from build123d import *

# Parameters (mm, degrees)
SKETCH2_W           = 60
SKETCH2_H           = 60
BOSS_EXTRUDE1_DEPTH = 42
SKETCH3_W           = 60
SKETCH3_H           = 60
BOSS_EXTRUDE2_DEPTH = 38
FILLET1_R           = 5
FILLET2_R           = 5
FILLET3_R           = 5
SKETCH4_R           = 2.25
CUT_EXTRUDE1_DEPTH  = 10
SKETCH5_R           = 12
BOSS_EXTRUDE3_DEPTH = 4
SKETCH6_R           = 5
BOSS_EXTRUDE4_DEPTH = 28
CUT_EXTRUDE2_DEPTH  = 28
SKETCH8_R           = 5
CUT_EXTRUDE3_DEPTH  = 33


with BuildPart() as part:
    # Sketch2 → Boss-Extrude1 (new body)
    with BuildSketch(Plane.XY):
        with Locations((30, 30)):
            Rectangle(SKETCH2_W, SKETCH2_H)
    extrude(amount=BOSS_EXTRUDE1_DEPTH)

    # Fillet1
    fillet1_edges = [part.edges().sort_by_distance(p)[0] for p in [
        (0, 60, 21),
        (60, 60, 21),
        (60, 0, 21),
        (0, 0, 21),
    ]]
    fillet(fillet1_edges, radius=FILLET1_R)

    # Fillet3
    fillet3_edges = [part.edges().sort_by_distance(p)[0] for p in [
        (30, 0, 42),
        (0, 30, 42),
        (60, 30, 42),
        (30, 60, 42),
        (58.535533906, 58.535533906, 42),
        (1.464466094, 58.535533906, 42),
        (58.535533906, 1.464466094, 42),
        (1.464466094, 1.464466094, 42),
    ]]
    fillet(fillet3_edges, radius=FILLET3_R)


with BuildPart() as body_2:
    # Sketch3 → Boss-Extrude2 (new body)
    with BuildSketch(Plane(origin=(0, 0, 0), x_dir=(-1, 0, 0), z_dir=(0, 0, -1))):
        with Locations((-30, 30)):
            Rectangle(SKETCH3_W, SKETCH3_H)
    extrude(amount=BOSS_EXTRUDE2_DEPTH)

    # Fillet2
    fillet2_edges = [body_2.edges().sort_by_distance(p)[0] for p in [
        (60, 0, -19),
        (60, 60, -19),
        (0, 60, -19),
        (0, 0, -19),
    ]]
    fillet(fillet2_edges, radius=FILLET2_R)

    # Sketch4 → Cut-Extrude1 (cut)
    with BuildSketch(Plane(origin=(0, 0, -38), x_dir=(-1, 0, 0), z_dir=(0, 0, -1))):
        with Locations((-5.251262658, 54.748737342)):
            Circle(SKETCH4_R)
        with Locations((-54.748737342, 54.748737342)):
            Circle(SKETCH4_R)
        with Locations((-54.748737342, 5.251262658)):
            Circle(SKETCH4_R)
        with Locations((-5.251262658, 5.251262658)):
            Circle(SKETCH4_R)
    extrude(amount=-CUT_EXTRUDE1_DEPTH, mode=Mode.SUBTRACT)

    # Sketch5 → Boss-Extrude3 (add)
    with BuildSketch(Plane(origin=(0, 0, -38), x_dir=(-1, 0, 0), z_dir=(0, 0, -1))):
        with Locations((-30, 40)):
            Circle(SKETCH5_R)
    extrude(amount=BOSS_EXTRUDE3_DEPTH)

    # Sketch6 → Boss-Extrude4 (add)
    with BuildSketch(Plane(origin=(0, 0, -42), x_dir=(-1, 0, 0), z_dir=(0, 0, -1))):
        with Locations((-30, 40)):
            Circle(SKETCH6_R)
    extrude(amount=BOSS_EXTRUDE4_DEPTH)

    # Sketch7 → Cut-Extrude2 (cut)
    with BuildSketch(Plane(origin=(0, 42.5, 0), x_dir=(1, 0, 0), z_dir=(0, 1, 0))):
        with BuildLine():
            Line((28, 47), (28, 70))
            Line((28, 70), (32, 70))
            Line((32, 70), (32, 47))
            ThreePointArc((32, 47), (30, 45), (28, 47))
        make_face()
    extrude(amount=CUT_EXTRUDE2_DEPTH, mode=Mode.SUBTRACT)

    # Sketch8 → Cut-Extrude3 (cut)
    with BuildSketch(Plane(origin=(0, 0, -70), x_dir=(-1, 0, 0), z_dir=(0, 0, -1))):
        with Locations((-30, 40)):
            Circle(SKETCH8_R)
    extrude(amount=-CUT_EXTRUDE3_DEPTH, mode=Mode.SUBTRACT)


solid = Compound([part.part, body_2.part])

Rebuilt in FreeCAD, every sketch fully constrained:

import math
import FreeCAD as App
import Part
import Sketcher

V = App.Vector


def edges_at(feature, points):
    """Names of the edges that pass closest to the given points."""
    edges = feature.Shape.Edges
    near = lambda p: min(range(len(edges)), key=lambda i: edges[i].distToShape(Part.Vertex(*p))[0])
    return sorted({f"Edge{near(p) + 1}" for p in points})


def add_polygon(sketch, points):
    """Adds a closed chain of lines whose ends are joined by coincident constraints."""
    first, n = sketch.GeometryCount, len(points)
    for a, b in zip(points, points[1:] + points[:1]):
        sketch.addGeometry(Part.LineSegment(App.Vector(*a, 0), App.Vector(*b, 0)), False)
    for i in range(n):
        sketch.addConstraint(Sketcher.Constraint("Coincident", first + i, 2, first + (i + 1) % n, 1))

doc = App.newDocument("Part")
params = doc.addObject("Spreadsheet::Sheet", "Params")
for row, (alias, value) in enumerate([
    ("sketch1_width", "60 mm"),
    ("pad1_length", "42 mm"),
    ("fillet_radius", "5 mm"),
    ("fillet2_radius", "5 mm"),
    ("sketch2_width", "60 mm"),
    ("pad2_length", "38 mm"),
    ("fillet3_radius", "5 mm"),
    ("sketch3_diameter", "4.5 mm"),
    ("pocket1_length", "10 mm"),
    ("sketch4_diameter", "24 mm"),
    ("pad3_length", "4 mm"),
    ("sketch5_diameter", "10 mm"),
    ("pad4_length", "28 mm"),
    ("sketch6_radius", "2 mm"),
    ("sketch6_height", "23 mm"),
    ("pocket2_length", "28 mm"),
    ("sketch7_diameter", "10 mm"),
    ("pocket3_length", "33 mm"),
], start=1):
    params.set(f"A{row}", alias)
    params.set(f"B{row}", "=" + value)
    params.setAlias(f"B{row}", alias)

body = doc.addObject("PartDesign::Body", "Body")

sketch1 = doc.addObject("Sketcher::SketchObject", "Sketch")
body.addObject(sketch1)
sketch1.AttachmentSupport = (doc.XY_Plane, [""])
sketch1.MapMode = "FlatFace"
add_polygon(sketch1, [(0, 60), (0, 0), (60, 0), (60, 60)])
sketch1.addConstraint(Sketcher.Constraint("Vertical", 0))
sketch1.addConstraint(Sketcher.Constraint("Horizontal", 1))
sketch1.addConstraint(Sketcher.Constraint("Vertical", 2))
sketch1.addConstraint(Sketcher.Constraint("Horizontal", 3))
sketch1.addConstraint(Sketcher.Constraint("Coincident", 0, 2, -1, 1))
sketch1.addConstraint(Sketcher.Constraint("Equal", 3, 0))
sketch1.addConstraint(Sketcher.Constraint("DistanceX", 1, 1, 1, 2, 60.0))
sketch1.setExpression("Constraints[10]", "Params.sketch1_width")
pad1 = doc.addObject("PartDesign::Pad", "Pad")
body.addObject(pad1)
pad1.Profile = sketch1
pad1.setExpression("Length", "Params.pad1_length")
doc.recompute()

fillet = doc.addObject("PartDesign::Fillet", "Fillet")
body.addObject(fillet)
fillet.Base = (pad1, edges_at(pad1, [
    (0, 60, 21),
    (60, 60, 21),
    (60, 0, 21),
    (0, 0, 21),
]))
fillet.setExpression("Radius", "Params.fillet_radius")
doc.recompute()

fillet2 = doc.addObject("PartDesign::Fillet", "Fillet001")
body.addObject(fillet2)
fillet2.Base = (fillet, edges_at(fillet, [
    (30, 0, 42),
    (0, 30, 42),
    (60, 30, 42),
    (30, 60, 42),
    (58.536, 58.536, 42),
    (1.464, 58.536, 42),
    (58.536, 1.464, 42),
    (1.464, 1.464, 42),
]))
fillet2.setExpression("Radius", "Params.fillet2_radius")
body2 = doc.addObject("PartDesign::Body", "Body001")

sketch2 = doc.addObject("Sketcher::SketchObject", "Sketch001")
body2.addObject(sketch2)
sketch2.AttachmentSupport = (doc.getObject("XY_Plane001"), [""])
sketch2.MapMode = "FlatFace"
add_polygon(sketch2, [(60, 60), (60, 0), (0, 0), (0, 60)])
sketch2.addConstraint(Sketcher.Constraint("Vertical", 0))
sketch2.addConstraint(Sketcher.Constraint("Horizontal", 1))
sketch2.addConstraint(Sketcher.Constraint("Vertical", 2))
sketch2.addConstraint(Sketcher.Constraint("Horizontal", 3))
sketch2.addConstraint(Sketcher.Constraint("Coincident", 1, 2, -1, 1))
sketch2.addConstraint(Sketcher.Constraint("Equal", 3, 0))
sketch2.addConstraint(Sketcher.Constraint("DistanceX", 1, 2, 1, 1, 60.0))
sketch2.setExpression("Constraints[10]", "Params.sketch2_width")
pad2 = doc.addObject("PartDesign::Pad", "Pad001")
body2.addObject(pad2)
pad2.Profile = sketch2
pad2.setExpression("Length", "Params.pad2_length")
pad2.Reversed = True
doc.recompute()

fillet3 = doc.addObject("PartDesign::Fillet", "Fillet002")
body2.addObject(fillet3)
fillet3.Base = (pad2, edges_at(pad2, [
    (60, 0, -19),
    (60, 60, -19),
    (0, 60, -19),
    (0, 0, -19),
]))
fillet3.setExpression("Radius", "Params.fillet3_radius")

sketch3 = doc.addObject("Sketcher::SketchObject", "Sketch002")
body2.addObject(sketch3)
sketch3.AttachmentSupport = (doc.getObject("XY_Plane001"), [""])
sketch3.MapMode = "FlatFace"
sketch3.AttachmentOffset = App.Placement(V(0, 0, -38), App.Rotation())
sketch3.addGeometry(Part.Circle(V(5.3, 54.7, 0), V(0, 0, 1), 2.2), False)
sketch3.addGeometry(Part.Circle(V(54.7, 54.7, 0), V(0, 0, 1), 2.2), False)
sketch3.addGeometry(Part.Circle(V(54.7, 5.3, 0), V(0, 0, 1), 2.2), False)
sketch3.addGeometry(Part.Circle(V(5.3, 5.3, 0), V(0, 0, 1), 2.2), False)
sketch3.addConstraint(Sketcher.Constraint("Equal", 0, 1))
sketch3.addConstraint(Sketcher.Constraint("Equal", 1, 2))
sketch3.addConstraint(Sketcher.Constraint("Equal", 2, 3))
sketch3.addConstraint(Sketcher.Constraint("Horizontal", 0, 3, 1, 3))
sketch3.addConstraint(Sketcher.Constraint("Horizontal", 2, 3, 3, 3))
sketch3.addConstraint(Sketcher.Constraint("Vertical", 1, 3, 2, 3))
sketch3.addConstraint(Sketcher.Constraint("Vertical", 0, 3, 3, 3))
sketch3.addConstraint(Sketcher.Constraint("Diameter", 0, 4.5))
sketch3.addConstraint(Sketcher.Constraint("DistanceX", -1, 1, 0, 3, 5.251263))
sketch3.addConstraint(Sketcher.Constraint("DistanceY", -1, 1, 0, 3, 54.748737))
sketch3.addConstraint(Sketcher.Constraint("DistanceX", -1, 1, 1, 3, 54.748737))
sketch3.addConstraint(Sketcher.Constraint("DistanceY", -1, 1, 2, 3, 5.251263))
sketch3.setExpression("Constraints[7]", "Params.sketch3_diameter")
pocket1 = doc.addObject("PartDesign::Pocket", "Pocket")
body2.addObject(pocket1)
pocket1.Profile = sketch3
pocket1.setExpression("Length", "Params.pocket1_length")
pocket1.Reversed = True

sketch4 = doc.addObject("Sketcher::SketchObject", "Sketch003")
body2.addObject(sketch4)
sketch4.AttachmentSupport = (doc.getObject("XY_Plane001"), [""])
sketch4.MapMode = "FlatFace"
sketch4.AttachmentOffset = App.Placement(V(0, 0, -38), App.Rotation())
sketch4.addGeometry(Part.Circle(V(30, 40, 0), V(0, 0, 1), 12), False)
sketch4.addConstraint(Sketcher.Constraint("Diameter", 0, 24.0))
sketch4.addConstraint(Sketcher.Constraint("DistanceX", -1, 1, 0, 3, 30.0))
sketch4.addConstraint(Sketcher.Constraint("DistanceY", -1, 1, 0, 3, 40.0))
sketch4.setExpression("Constraints[0]", "Params.sketch4_diameter")
pad3 = doc.addObject("PartDesign::Pad", "Pad002")
body2.addObject(pad3)
pad3.Profile = sketch4
pad3.setExpression("Length", "Params.pad3_length")
pad3.Reversed = True

sketch5 = doc.addObject("Sketcher::SketchObject", "Sketch004")
body2.addObject(sketch5)
sketch5.AttachmentSupport = (doc.getObject("XY_Plane001"), [""])
sketch5.MapMode = "FlatFace"
sketch5.AttachmentOffset = App.Placement(V(0, 0, -42), App.Rotation())
sketch5.addGeometry(Part.Circle(V(30, 40, 0), V(0, 0, 1), 5), False)
sketch5.addConstraint(Sketcher.Constraint("Diameter", 0, 10.0))
sketch5.addConstraint(Sketcher.Constraint("DistanceX", -1, 1, 0, 3, 30.0))
sketch5.addConstraint(Sketcher.Constraint("DistanceY", -1, 1, 0, 3, 40.0))
sketch5.setExpression("Constraints[0]", "Params.sketch5_diameter")
pad4 = doc.addObject("PartDesign::Pad", "Pad003")
body2.addObject(pad4)
pad4.Profile = sketch5
pad4.setExpression("Length", "Params.pad4_length")
pad4.Reversed = True

sketch6 = doc.addObject("Sketcher::SketchObject", "Sketch005")
body2.addObject(sketch6)
sketch6.AttachmentSupport = (doc.getObject("XZ_Plane001"), [""])
sketch6.MapMode = "FlatFace"
sketch6.AttachmentOffset = App.Placement(V(0, 0, -42.5), App.Rotation())
sketch6.addGeometry(Part.LineSegment(V(28, -70, 0), V(28, -47, 0)), False)
sketch6.addGeometry(Part.ArcOfCircle(Part.Circle(V(30, -47, 0), V(0, 0, 1), 2), math.radians(0), math.radians(180)), False)
sketch6.addGeometry(Part.LineSegment(V(32, -47, 0), V(32, -70, 0)), False)
sketch6.addGeometry(Part.LineSegment(V(32, -70, 0), V(28, -70, 0)), False)
sketch6.addConstraint(Sketcher.Constraint("Tangent", 0, 2, 1, 2))
sketch6.addConstraint(Sketcher.Constraint("Tangent", 1, 1, 2, 1))
sketch6.addConstraint(Sketcher.Constraint("Coincident", 2, 2, 3, 1))
sketch6.addConstraint(Sketcher.Constraint("Coincident", 3, 2, 0, 1))
sketch6.addConstraint(Sketcher.Constraint("Vertical", 0))
sketch6.addConstraint(Sketcher.Constraint("Vertical", 2))
sketch6.addConstraint(Sketcher.Constraint("Horizontal", 3))
sketch6.addConstraint(Sketcher.Constraint("Radius", 1, 2.0))
sketch6.addConstraint(Sketcher.Constraint("DistanceY", 0, 1, 0, 2, 23.0))
sketch6.addConstraint(Sketcher.Constraint("DistanceX", -1, 1, 1, 3, 30.0))
sketch6.addConstraint(Sketcher.Constraint("DistanceY", 1, 3, -1, 1, 47.0))
sketch6.setExpression("Constraints[7]", "Params.sketch6_radius")
sketch6.setExpression("Constraints[8]", "Params.sketch6_height")
pocket2 = doc.addObject("PartDesign::Pocket", "Pocket001")
body2.addObject(pocket2)
pocket2.Profile = sketch6
pocket2.setExpression("Length", "Params.pocket2_length")

sketch7 = doc.addObject("Sketcher::SketchObject", "Sketch006")
body2.addObject(sketch7)
sketch7.AttachmentSupport = (doc.getObject("XY_Plane001"), [""])
sketch7.MapMode = "FlatFace"
sketch7.AttachmentOffset = App.Placement(V(0, 0, -70), App.Rotation())
sketch7.addGeometry(Part.Circle(V(30, 40, 0), V(0, 0, 1), 5), False)
sketch7.addConstraint(Sketcher.Constraint("Diameter", 0, 10.0))
sketch7.addConstraint(Sketcher.Constraint("DistanceX", -1, 1, 0, 3, 30.0))
sketch7.addConstraint(Sketcher.Constraint("DistanceY", -1, 1, 0, 3, 40.0))
sketch7.setExpression("Constraints[0]", "Params.sketch7_diameter")
pocket3 = doc.addObject("PartDesign::Pocket", "Pocket002")
body2.addObject(pocket3)
pocket3.Profile = sketch7
pocket3.setExpression("Length", "Params.pocket3_length")
pocket3.Reversed = True

doc.recompute()
